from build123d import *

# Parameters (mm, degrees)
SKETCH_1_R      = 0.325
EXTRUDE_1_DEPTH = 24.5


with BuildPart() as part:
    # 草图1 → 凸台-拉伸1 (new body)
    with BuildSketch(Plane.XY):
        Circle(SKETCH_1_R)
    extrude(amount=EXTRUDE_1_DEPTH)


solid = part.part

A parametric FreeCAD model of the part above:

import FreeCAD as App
import Part
import Sketcher

doc = App.newDocument("Part")
body = doc.addObject("PartDesign::Body", "Body")

sketch1 = body.newObject("Sketcher::SketchObject", "Sketch")
sketch1.AttachmentSupport = (doc.getObject("XY_Plane"), [""])
sketch1.MapMode = "FlatFace"
sketch1.addGeometry(Part.Circle(App.Vector(0, 0, 0), App.Vector(0, 0, 1), 0.325), False)
sketch1.addConstraint(Sketcher.Constraint("Coincident", 0, 3, -1, 1))
sketch1.addConstraint(Sketcher.Constraint("Diameter", 0, 0.65))
pad1 = body.newObject("PartDesign::Pad", "Pad")
pad1.Profile = sketch1
pad1.Length = 24.5

doc.recompute()
